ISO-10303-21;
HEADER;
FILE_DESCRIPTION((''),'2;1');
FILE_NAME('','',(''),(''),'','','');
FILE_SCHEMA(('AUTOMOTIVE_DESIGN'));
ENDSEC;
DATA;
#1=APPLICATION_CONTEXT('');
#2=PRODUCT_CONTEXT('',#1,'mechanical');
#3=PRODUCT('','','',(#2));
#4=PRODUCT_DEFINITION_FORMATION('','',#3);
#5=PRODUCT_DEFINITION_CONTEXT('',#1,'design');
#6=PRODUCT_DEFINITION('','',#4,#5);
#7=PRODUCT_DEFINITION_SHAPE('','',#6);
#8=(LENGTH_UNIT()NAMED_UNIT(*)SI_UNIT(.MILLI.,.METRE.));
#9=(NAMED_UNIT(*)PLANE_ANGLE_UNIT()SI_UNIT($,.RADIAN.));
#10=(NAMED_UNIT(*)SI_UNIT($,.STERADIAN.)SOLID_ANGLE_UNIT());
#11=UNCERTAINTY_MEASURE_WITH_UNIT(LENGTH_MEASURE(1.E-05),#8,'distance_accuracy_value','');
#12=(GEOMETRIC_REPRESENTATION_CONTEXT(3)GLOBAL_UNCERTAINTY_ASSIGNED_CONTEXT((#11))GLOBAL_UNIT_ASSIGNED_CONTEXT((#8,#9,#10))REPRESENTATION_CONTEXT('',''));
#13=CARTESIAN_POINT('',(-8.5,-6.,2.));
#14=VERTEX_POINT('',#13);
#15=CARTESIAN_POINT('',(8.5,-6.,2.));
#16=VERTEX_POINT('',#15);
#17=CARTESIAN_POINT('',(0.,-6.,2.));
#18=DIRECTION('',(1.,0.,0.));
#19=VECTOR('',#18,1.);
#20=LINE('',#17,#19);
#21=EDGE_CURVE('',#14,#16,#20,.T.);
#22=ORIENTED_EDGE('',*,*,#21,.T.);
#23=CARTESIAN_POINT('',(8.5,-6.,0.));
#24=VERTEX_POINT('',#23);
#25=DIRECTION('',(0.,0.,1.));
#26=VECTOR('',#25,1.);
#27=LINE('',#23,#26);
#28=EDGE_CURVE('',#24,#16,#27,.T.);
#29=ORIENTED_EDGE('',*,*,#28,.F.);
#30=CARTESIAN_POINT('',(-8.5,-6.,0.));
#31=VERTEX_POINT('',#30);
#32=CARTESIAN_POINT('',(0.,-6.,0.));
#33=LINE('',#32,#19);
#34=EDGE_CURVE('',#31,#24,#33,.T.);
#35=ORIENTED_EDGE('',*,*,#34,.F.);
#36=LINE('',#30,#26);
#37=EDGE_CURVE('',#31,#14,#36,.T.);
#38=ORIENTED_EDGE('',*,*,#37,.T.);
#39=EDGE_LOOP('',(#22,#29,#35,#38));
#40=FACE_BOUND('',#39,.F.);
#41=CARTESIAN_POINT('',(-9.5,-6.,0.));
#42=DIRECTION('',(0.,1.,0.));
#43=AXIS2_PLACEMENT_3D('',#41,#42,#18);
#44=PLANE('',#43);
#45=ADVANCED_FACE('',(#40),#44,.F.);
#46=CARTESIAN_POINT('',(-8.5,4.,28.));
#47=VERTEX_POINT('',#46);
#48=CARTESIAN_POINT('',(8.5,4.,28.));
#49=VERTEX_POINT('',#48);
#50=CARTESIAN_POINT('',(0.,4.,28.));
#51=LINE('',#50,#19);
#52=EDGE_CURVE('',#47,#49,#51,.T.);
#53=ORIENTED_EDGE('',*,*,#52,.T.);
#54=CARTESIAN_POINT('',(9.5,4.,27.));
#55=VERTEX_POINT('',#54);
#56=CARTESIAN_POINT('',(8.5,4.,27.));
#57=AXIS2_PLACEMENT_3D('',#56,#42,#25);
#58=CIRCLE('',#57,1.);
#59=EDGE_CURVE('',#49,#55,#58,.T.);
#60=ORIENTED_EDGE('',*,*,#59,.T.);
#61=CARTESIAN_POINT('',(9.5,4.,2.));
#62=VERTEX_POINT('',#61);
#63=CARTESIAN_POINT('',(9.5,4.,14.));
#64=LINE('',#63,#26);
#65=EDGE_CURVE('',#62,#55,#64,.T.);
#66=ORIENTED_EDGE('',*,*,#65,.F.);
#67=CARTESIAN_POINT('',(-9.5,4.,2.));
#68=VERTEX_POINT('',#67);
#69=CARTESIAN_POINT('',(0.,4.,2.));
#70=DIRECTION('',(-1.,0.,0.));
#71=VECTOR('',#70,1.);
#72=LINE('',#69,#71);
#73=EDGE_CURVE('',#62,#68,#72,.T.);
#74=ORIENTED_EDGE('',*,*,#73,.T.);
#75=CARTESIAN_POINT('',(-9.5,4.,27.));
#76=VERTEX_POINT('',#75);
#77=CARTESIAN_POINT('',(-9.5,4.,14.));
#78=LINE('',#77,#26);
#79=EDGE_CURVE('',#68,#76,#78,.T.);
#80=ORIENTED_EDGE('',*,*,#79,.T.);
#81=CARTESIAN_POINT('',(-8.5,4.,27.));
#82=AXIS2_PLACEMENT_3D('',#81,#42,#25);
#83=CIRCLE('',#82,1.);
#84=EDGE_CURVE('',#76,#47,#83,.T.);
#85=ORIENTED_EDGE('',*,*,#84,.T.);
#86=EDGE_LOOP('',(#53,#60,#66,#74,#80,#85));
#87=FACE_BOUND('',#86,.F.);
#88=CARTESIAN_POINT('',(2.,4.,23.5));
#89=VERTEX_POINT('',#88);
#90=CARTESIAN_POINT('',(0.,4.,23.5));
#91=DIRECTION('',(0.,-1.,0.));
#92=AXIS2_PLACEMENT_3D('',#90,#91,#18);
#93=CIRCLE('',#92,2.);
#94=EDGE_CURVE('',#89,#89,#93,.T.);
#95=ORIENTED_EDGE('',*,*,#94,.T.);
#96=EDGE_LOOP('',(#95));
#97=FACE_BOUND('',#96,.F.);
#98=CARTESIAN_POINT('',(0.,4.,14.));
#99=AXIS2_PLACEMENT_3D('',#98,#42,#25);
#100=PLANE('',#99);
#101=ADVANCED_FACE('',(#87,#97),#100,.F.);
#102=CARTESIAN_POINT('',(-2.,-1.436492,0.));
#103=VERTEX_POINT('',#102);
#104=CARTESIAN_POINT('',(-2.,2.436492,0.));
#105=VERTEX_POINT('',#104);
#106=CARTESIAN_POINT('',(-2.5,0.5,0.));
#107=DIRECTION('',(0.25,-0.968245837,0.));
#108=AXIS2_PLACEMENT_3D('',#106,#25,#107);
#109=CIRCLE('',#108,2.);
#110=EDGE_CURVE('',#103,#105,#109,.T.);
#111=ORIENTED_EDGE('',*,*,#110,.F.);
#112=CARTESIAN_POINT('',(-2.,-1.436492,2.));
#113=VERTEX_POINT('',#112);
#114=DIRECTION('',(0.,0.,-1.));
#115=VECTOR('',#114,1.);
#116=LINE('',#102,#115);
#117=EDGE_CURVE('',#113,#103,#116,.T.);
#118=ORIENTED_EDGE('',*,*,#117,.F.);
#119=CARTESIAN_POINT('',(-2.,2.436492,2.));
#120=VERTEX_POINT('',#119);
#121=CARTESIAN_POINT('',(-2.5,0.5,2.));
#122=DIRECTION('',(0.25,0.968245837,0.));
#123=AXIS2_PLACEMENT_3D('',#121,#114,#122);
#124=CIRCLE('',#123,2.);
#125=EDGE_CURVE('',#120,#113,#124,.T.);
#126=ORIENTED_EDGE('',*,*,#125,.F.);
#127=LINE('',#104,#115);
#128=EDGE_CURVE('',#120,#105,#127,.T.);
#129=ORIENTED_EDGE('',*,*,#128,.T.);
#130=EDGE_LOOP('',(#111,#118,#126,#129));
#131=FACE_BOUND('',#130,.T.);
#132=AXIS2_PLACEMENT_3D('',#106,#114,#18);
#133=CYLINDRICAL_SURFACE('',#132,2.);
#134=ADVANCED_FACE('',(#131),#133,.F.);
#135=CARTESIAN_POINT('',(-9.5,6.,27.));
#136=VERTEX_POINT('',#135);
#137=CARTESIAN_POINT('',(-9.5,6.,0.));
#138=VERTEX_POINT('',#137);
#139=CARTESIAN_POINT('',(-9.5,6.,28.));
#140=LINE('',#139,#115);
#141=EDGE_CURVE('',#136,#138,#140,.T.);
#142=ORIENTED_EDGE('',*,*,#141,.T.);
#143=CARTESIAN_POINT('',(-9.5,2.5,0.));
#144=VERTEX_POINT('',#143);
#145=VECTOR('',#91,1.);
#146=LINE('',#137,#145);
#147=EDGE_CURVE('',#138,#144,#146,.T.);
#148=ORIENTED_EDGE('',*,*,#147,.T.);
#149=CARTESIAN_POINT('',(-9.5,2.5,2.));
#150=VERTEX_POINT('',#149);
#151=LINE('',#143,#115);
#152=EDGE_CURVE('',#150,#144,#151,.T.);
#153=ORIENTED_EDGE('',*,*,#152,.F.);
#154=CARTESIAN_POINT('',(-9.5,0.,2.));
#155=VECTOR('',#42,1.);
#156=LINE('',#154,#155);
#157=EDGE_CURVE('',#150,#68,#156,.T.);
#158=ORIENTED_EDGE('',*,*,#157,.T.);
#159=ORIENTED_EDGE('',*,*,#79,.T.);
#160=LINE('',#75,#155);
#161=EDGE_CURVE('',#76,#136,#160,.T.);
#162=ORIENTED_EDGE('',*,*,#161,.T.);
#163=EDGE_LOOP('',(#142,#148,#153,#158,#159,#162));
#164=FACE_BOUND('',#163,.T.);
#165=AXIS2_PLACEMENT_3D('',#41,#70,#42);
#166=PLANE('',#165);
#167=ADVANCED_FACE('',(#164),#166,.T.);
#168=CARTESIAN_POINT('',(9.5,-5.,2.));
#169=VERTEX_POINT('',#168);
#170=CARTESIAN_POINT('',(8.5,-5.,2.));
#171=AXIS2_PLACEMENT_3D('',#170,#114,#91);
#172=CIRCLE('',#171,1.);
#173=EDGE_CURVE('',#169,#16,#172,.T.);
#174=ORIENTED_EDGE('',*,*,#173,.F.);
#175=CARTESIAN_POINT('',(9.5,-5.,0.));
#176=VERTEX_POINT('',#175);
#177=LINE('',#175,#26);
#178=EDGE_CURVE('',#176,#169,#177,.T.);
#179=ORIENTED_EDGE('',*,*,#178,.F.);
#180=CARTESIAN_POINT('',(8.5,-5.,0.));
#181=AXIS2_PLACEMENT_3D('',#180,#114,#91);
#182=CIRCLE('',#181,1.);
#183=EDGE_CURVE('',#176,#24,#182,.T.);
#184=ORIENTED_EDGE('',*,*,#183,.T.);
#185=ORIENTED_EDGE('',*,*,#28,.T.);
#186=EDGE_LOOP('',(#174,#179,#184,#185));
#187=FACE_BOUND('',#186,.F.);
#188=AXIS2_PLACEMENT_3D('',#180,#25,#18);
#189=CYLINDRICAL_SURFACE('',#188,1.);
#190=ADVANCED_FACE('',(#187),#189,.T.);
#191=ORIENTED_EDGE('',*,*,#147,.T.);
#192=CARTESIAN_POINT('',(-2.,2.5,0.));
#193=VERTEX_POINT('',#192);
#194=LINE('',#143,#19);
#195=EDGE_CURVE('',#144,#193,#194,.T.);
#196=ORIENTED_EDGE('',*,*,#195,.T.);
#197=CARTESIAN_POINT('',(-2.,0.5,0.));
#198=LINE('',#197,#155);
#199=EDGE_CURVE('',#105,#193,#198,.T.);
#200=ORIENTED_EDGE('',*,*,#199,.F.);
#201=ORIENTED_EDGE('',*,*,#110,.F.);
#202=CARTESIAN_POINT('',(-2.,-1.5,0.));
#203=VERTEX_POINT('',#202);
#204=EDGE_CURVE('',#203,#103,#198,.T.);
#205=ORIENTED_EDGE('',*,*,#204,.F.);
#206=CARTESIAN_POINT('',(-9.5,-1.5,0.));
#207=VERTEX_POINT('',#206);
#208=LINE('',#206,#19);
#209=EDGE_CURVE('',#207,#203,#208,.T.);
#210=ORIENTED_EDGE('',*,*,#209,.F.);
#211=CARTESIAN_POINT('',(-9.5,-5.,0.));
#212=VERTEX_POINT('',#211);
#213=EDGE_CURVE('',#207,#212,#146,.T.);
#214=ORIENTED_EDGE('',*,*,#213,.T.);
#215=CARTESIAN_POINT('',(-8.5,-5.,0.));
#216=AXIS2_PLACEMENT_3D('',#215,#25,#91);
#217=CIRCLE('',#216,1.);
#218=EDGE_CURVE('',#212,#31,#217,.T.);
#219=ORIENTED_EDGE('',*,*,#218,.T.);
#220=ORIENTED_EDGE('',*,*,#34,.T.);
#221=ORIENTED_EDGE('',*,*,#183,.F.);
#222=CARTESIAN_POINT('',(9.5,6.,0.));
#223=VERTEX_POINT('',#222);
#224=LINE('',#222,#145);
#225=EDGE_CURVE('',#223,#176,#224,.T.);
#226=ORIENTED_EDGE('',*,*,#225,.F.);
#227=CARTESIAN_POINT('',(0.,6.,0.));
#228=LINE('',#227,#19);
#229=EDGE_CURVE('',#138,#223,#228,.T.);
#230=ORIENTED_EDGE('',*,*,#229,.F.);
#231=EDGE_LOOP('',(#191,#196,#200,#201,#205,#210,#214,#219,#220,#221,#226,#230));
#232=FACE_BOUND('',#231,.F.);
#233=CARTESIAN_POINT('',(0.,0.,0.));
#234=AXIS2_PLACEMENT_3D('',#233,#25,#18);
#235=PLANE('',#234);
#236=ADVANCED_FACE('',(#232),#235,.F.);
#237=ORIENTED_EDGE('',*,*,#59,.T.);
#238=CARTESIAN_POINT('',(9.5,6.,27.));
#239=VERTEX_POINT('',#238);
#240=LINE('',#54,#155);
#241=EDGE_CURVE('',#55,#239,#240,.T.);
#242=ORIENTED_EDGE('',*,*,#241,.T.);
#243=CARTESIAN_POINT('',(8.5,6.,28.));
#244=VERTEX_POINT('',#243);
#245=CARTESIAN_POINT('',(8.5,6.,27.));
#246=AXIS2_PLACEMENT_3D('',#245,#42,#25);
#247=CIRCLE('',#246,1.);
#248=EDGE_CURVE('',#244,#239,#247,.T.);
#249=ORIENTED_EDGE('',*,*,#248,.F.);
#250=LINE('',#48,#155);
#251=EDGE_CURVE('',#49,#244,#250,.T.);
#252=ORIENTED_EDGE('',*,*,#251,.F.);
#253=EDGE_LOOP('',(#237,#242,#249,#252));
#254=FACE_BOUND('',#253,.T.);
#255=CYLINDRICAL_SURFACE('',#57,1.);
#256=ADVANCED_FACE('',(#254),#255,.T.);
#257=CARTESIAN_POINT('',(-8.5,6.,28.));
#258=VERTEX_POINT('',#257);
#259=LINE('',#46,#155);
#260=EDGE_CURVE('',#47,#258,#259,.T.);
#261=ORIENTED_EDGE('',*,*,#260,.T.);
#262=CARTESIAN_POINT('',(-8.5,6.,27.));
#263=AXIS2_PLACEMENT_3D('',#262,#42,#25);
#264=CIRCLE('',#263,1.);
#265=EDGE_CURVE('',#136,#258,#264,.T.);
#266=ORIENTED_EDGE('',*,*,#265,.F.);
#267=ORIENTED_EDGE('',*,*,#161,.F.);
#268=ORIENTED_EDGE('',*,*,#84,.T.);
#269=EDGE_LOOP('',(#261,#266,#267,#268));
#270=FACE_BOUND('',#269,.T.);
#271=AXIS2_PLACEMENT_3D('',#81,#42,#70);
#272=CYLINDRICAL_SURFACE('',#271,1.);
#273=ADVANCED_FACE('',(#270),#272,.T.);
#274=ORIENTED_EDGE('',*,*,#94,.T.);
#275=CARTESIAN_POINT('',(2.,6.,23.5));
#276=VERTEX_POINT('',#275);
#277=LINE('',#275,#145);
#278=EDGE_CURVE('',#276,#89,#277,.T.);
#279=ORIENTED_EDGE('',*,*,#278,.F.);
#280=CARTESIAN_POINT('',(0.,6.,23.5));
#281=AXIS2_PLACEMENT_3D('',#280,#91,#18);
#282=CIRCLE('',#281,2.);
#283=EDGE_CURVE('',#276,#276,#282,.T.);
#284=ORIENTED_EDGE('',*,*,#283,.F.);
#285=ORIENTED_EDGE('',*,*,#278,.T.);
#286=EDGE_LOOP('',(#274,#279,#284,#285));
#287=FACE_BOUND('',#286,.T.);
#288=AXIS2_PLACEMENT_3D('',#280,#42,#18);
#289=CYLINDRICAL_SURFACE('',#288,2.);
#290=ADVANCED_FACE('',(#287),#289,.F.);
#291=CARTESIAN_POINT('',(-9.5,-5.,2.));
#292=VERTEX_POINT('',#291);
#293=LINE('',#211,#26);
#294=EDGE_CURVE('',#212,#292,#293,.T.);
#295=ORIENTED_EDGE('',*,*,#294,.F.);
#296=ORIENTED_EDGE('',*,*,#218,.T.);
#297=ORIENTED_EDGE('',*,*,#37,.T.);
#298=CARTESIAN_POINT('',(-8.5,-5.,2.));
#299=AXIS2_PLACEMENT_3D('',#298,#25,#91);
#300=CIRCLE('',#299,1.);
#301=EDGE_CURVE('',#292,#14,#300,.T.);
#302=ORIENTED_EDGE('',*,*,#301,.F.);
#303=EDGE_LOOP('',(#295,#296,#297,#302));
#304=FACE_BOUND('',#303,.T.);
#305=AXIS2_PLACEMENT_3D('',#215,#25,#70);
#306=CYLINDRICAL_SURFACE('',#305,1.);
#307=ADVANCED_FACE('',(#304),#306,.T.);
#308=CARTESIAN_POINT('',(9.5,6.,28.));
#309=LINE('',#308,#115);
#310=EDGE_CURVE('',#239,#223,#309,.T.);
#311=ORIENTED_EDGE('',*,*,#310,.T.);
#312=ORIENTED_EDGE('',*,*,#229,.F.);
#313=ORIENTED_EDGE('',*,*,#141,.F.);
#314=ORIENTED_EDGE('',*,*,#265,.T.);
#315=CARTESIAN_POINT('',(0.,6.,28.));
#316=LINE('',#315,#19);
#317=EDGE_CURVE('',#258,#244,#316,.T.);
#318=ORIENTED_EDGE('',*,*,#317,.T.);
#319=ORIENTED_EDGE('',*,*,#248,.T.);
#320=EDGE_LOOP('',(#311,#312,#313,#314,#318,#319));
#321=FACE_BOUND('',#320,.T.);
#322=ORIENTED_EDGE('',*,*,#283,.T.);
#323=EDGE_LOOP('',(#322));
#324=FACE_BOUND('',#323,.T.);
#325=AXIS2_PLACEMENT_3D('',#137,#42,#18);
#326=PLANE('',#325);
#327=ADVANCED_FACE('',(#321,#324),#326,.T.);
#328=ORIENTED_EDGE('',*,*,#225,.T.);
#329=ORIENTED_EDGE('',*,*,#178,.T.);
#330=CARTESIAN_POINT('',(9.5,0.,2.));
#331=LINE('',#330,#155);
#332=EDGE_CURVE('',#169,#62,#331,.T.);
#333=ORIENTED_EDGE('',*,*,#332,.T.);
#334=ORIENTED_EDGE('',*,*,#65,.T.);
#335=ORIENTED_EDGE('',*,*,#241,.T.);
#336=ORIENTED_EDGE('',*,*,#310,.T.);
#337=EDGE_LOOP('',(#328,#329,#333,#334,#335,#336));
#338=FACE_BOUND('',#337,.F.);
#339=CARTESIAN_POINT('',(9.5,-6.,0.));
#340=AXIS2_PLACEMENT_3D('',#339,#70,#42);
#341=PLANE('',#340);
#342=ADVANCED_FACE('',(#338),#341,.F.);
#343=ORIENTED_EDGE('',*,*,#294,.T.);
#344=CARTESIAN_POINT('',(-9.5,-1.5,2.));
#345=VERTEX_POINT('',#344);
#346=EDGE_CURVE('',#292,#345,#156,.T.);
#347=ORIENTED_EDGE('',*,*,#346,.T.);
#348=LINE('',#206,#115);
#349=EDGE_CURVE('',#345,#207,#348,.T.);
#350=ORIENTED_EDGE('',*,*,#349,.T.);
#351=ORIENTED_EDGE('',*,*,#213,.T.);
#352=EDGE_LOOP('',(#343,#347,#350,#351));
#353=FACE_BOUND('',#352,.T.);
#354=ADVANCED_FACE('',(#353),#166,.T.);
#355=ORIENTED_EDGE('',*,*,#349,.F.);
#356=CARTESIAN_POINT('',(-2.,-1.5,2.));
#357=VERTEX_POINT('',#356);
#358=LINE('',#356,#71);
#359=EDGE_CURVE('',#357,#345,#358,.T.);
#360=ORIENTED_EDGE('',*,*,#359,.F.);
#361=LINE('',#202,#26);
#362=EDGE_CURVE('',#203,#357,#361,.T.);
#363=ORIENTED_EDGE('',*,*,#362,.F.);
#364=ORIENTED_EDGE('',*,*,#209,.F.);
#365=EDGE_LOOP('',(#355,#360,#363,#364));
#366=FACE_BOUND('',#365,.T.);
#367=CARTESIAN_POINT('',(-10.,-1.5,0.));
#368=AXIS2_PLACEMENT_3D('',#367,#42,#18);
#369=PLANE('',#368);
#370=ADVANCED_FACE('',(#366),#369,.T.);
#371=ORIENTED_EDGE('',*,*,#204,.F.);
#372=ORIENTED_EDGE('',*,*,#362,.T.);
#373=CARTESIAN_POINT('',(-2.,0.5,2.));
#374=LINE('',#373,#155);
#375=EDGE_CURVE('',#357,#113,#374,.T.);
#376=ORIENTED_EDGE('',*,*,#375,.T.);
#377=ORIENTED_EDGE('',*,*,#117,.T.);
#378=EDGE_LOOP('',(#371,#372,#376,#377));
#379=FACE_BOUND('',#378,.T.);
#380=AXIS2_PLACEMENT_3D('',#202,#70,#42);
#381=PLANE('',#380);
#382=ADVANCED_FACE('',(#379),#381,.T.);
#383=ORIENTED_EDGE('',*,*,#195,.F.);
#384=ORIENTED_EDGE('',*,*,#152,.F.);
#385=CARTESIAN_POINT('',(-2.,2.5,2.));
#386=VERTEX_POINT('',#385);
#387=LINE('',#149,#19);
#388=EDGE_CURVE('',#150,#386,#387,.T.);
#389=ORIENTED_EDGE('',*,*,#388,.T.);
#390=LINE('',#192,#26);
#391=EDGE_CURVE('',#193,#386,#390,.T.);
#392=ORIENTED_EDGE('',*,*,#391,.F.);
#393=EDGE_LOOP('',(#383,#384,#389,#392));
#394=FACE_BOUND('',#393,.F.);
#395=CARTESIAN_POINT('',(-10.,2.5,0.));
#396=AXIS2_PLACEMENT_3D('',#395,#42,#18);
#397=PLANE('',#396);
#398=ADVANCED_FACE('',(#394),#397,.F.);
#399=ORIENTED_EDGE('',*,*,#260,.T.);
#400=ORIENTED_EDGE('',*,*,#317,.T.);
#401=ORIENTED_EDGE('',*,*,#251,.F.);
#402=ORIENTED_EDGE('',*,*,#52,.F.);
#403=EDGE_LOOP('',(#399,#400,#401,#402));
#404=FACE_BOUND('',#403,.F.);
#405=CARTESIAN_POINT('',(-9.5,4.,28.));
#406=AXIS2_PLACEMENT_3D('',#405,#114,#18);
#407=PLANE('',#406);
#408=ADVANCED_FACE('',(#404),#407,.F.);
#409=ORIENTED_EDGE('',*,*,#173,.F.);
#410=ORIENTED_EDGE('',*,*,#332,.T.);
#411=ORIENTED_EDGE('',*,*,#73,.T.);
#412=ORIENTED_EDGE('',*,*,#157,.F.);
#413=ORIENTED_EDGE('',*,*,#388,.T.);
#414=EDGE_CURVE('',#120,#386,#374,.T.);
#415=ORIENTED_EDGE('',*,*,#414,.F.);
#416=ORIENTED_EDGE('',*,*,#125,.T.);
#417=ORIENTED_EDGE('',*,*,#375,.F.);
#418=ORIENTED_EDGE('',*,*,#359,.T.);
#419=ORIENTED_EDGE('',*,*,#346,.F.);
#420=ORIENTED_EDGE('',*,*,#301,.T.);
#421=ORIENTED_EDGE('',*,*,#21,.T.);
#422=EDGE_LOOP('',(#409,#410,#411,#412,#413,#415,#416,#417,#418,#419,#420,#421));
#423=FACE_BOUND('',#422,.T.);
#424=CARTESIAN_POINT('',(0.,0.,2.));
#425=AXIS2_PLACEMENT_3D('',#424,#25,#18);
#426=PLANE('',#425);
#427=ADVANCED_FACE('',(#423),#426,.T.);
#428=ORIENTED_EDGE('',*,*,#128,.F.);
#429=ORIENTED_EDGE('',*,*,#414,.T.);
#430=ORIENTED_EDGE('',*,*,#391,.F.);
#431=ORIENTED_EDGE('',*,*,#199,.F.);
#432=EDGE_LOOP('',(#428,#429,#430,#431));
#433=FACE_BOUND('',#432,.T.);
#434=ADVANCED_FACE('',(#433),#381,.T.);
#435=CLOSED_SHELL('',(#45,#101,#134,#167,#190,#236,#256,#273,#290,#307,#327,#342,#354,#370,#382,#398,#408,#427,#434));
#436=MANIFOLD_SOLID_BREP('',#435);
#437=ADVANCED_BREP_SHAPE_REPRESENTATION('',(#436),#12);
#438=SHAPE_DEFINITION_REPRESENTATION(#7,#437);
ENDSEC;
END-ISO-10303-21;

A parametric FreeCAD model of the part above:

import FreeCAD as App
import Part
import Sketcher

V = App.Vector


def edges_at(feature, points):
    """Names of the edges that pass closest to the given points."""
    edges = feature.Shape.Edges
    near = lambda p: min(range(len(edges)), key=lambda i: edges[i].distToShape(Part.Vertex(*p))[0])
    return sorted({f"Edge{near(p) + 1}" for p in points})


def add_polygon(sketch, points):
    """Adds a closed chain of lines whose ends are joined by coincident constraints."""
    first, n = sketch.GeometryCount, len(points)
    for a, b in zip(points, points[1:] + points[:1]):
        sketch.addGeometry(Part.LineSegment(App.Vector(*a, 0), App.Vector(*b, 0)), False)
    for i in range(n):
        sketch.addConstraint(Sketcher.Constraint("Coincident", first + i, 2, first + (i + 1) % n, 1))

doc = App.newDocument("Part")
body = doc.addObject("PartDesign::Body", "Body")

sketch1 = body.newObject("Sketcher::SketchObject", "Sketch")
sketch1.AttachmentSupport = (doc.getObject("XY_Plane"), [""])
sketch1.MapMode = "FlatFace"
add_polygon(sketch1, [(-10, 6), (-10, -6), (10, -6), (10, 6)])
sketch1.addConstraint([
    Sketcher.Constraint("Vertical", 0),
    Sketcher.Constraint("Horizontal", 1),
    Sketcher.Constraint("Vertical", 2),
    Sketcher.Constraint("Horizontal", 3),
    Sketcher.Constraint("Symmetric", 0, 2, 2, 2, -1, 1),
    Sketcher.Constraint("DistanceX", 1, 1, 1, 2, 19.0),
    Sketcher.Constraint("DistanceY", 0, 2, 0, 1, 12.0),
])
pad1 = body.newObject("PartDesign::Pad", "Pad")
pad1.Profile = sketch1
pad1.Length = 2

sketch2 = body.newObject("Sketcher::SketchObject", "Sketch001")
sketch2.AttachmentSupport = (doc.getObject("XZ_Plane"), [""])
sketch2.MapMode = "FlatFace"
sketch2.AttachmentOffset = App.Placement(V(0, 0, -4), App.Rotation())
add_polygon(sketch2, [(10, 0), (-10, 0), (-10, 28), (10, 28)])
sketch2.addConstraint([
    Sketcher.Constraint("Horizontal", 0),
    Sketcher.Constraint("Vertical", 1),
    Sketcher.Constraint("Horizontal", 2),
    Sketcher.Constraint("Vertical", 3),
    Sketcher.Constraint("Symmetric", 0, 2, 3, 2, -1, 1),
    Sketcher.Constraint("DistanceX", 0, 2, 0, 1, 19.0),
    Sketcher.Constraint("DistanceY", 1, 1, 1, 2, 28.0),
])
pad2 = body.newObject("PartDesign::Pad", "Pad001")
pad2.Profile = sketch2
pad2.Length = 2
pad2.Reversed = True

sketch3 = body.newObject("Sketcher::SketchObject", "Sketch002")
sketch3.AttachmentSupport = (doc.getObject("XY_Plane"), [""])
sketch3.MapMode = "FlatFace"
sketch3.addGeometry(Part.Circle(V(-2.5, 0.5, 0), V(0, 0, 1), 2), False)
sketch3.addConstraint([
    Sketcher.Constraint("Diameter", 0, 4.0),
    Sketcher.Constraint("DistanceX", 0, 3, -1, 1, 2.5),
    Sketcher.Constraint("DistanceY", -1, 1, 0, 3, 0.5),
])
pocket1 = body.newObject("PartDesign::Pocket", "Pocket")
pocket1.Profile = sketch3
pocket1.Length = 2
pocket1.Reversed = True

sketch4 = body.newObject("Sketcher::SketchObject", "Sketch003")
sketch4.AttachmentSupport = (doc.getObject("XY_Plane"), [""])
sketch4.MapMode = "FlatFace"
add_polygon(sketch4, [(-10, 2.5), (-10, -1.5), (-2, -1.5), (-2, 2.5)])
sketch4.addConstraint([
    Sketcher.Constraint("Vertical", 0),
    Sketcher.Constraint("Horizontal", 1),
    Sketcher.Constraint("Vertical", 2),
    Sketcher.Constraint("Horizontal", 3),
    Sketcher.Constraint("DistanceX", 1, 1, 1, 2, 8.0),
    Sketcher.Constraint("DistanceY", 0, 2, 0, 1, 4.0),
    Sketcher.Constraint("DistanceX", 0, 2, -1, 1, 10.0),
    Sketcher.Constraint("DistanceY", 0, 2, -1, 1, 1.5),
])
pocket2 = body.newObject("PartDesign::Pocket", "Pocket001")
pocket2.Profile = sketch4
pocket2.Length = 2
pocket2.Reversed = True

sketch5 = body.newObject("Sketcher::SketchObject", "Sketch004")
sketch5.AttachmentSupport = (doc.getObject("XZ_Plane"), [""])
sketch5.MapMode = "FlatFace"
sketch5.AttachmentOffset = App.Placement(V(0, 0, -6), App.Rotation())
sketch5.addGeometry(Part.Circle(V(0, 23.5, 0), V(0, 0, 1), 2), False)
sketch5.addConstraint([
    Sketcher.Constraint("PointOnObject", 0, 3, -2),
    Sketcher.Constraint("Diameter", 0, 4.0),
    Sketcher.Constraint("DistanceY", -1, 1, 0, 3, 23.5),
])
pocket3 = body.newObject("PartDesign::Pocket", "Pocket002")
pocket3.Profile = sketch5
pocket3.Length = 2
pocket3.Reversed = True
doc.recompute()

fillet = body.newObject("PartDesign::Fillet", "Fillet")
fillet.Base = (pocket3, edges_at(pocket3, [
    (-9.5, 5, 28),
    (9.5, 5, 28),
    (9.5, -6, 1),
    (-9.5, -6, 1),
]))
fillet.Radius = 1

doc.recompute()
